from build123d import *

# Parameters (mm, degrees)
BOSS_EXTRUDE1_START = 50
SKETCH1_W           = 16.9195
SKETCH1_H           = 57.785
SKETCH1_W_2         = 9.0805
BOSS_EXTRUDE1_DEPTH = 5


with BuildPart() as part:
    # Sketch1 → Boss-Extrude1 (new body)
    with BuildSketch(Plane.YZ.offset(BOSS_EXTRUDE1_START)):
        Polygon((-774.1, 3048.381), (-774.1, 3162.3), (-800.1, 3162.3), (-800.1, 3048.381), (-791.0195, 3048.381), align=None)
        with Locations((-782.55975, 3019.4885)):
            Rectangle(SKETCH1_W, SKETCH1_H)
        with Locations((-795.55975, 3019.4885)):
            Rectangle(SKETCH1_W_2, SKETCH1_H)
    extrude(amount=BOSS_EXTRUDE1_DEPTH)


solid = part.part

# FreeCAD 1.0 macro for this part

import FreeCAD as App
import Part
import Sketcher

V = App.Vector


def add_polygon(sketch, points):
    """Adds a closed chain of lines whose ends are joined by coincident constraints."""
    first, n = sketch.GeometryCount, len(points)
    for a, b in zip(points, points[1:] + points[:1]):
        sketch.addGeometry(Part.LineSegment(App.Vector(*a, 0), App.Vector(*b, 0)), False)
    for i in range(n):
        sketch.addConstraint(Sketcher.Constraint("Coincident", first + i, 2, first + (i + 1) % n, 1))

doc = App.newDocument("Part")
body = doc.addObject("PartDesign::Body", "Body")

# Sketch on YZ plane
sketch1 = body.newObject("Sketcher::SketchObject", "Sketch")
sketch1.AttachmentSupport = (doc.getObject("YZ_Plane"), [""])
sketch1.MapMode = "FlatFace"
sketch1.AttachmentOffset = App.Placement(V(0, 0, 50), App.Rotation())
add_polygon(sketch1, [(-774.1, 3162.3), (-800.1, 3162.3), (-800.1, 2990.596), (-774.1, 2990.596)])  # lines 0-3
sketch1.addConstraint([
    Sketcher.Constraint("Horizontal", 0),
    Sketcher.Constraint("Vertical", 1),
    Sketcher.Constraint("Horizontal", 2),
    Sketcher.Constraint("Vertical", 3),
    Sketcher.Constraint("DistanceX", 0, 2, 0, 1, 26.0),
    Sketcher.Constraint("DistanceX", 0, 2, -1, 1, 800.1),
    Sketcher.Constraint("DistanceY", -1, 1, 0, 2, 3162.3),
    Sketcher.Constraint("DistanceY", 1, 2, 1, 1, 171.704),
])
pad1 = body.newObject("PartDesign::Pad", "Pad")
pad1.Profile = sketch1
pad1.Length = 5

doc.recompute()
